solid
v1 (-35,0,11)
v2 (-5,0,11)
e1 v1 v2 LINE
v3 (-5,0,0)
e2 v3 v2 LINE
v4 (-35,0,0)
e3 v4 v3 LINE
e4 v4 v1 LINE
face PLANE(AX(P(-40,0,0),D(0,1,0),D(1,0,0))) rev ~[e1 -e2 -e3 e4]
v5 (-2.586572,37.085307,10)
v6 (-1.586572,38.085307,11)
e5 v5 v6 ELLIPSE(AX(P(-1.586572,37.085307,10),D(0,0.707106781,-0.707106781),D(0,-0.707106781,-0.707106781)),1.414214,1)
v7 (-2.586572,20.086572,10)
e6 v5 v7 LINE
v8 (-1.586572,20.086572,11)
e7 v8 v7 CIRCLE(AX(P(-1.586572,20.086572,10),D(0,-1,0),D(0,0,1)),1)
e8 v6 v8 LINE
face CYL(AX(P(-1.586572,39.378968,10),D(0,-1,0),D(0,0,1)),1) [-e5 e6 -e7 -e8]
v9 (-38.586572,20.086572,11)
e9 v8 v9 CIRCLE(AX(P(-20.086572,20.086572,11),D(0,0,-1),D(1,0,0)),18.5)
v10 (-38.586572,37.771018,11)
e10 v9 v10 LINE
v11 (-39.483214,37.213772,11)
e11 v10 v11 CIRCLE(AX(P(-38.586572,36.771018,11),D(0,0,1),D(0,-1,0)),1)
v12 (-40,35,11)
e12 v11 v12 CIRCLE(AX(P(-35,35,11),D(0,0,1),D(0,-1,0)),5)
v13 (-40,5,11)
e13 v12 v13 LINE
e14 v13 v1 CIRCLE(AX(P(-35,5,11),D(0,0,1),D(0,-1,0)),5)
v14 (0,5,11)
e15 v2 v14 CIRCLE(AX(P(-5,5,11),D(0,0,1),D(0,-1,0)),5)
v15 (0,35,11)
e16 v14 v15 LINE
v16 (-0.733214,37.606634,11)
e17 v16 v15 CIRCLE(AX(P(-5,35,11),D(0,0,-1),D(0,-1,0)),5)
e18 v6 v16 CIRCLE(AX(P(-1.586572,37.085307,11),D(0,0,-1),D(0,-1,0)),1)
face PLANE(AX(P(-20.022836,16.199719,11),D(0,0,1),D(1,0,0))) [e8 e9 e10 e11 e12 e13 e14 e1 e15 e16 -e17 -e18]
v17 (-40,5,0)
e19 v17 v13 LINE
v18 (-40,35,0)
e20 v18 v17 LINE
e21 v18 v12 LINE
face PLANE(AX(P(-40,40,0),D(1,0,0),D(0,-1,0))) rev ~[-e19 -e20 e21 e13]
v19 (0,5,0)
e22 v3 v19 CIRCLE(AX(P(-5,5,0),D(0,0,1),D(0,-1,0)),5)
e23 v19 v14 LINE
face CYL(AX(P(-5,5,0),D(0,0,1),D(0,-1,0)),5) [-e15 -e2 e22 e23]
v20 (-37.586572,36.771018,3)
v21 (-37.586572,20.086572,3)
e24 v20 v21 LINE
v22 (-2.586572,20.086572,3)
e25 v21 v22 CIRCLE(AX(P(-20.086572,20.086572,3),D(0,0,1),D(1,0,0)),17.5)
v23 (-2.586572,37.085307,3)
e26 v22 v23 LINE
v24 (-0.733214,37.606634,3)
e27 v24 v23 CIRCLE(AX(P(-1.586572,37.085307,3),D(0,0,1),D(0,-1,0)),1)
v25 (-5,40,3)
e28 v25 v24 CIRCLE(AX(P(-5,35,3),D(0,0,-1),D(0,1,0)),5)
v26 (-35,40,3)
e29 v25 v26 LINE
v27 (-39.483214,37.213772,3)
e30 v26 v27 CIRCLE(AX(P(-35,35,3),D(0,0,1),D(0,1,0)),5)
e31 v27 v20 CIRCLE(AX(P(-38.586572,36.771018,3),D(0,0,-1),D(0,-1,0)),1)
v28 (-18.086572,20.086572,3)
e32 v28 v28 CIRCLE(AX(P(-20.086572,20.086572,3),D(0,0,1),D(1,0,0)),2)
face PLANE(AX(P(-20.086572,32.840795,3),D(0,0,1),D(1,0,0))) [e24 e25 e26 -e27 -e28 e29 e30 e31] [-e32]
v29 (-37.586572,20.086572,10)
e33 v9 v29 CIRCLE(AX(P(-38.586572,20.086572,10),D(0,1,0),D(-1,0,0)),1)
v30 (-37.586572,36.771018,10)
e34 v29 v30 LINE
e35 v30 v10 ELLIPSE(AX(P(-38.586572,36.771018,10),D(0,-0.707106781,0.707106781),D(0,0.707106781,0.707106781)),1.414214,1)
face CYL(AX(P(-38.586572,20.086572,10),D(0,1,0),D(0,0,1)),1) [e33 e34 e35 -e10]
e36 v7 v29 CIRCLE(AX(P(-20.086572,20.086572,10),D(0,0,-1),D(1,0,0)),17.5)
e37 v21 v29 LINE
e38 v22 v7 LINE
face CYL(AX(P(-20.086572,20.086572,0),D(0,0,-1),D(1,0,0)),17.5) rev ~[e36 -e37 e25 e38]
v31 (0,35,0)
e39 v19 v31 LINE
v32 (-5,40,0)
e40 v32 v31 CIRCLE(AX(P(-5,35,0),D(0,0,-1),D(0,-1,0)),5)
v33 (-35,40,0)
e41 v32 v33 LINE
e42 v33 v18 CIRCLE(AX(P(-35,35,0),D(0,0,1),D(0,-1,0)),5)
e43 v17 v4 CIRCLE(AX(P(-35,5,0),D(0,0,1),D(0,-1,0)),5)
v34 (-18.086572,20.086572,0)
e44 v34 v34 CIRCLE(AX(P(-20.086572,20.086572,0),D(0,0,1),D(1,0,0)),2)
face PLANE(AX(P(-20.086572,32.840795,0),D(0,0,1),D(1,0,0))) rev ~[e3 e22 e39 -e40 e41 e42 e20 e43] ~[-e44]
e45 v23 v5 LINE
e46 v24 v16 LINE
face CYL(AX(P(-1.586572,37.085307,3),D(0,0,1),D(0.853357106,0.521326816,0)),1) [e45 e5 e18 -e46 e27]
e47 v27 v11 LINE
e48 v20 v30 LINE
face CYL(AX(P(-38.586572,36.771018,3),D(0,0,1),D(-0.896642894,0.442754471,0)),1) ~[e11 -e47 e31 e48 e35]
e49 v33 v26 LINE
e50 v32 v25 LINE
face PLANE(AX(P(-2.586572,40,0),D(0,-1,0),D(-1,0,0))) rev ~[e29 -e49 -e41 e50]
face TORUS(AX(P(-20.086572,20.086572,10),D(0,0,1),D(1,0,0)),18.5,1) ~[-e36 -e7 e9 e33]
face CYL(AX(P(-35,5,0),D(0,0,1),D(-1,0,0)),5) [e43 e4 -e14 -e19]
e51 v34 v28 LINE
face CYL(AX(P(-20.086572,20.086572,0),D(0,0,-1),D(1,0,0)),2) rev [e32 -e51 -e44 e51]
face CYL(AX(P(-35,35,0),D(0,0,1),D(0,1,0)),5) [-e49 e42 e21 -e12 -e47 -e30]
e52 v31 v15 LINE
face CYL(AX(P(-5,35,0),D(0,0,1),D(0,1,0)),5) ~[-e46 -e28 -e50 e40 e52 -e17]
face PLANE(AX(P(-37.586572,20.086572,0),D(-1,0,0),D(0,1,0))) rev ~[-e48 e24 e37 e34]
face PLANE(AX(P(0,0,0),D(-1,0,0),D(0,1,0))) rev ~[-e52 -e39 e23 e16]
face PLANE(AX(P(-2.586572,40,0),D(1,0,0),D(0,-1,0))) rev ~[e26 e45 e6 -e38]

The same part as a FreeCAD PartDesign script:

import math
import FreeCAD as App
import Part
import Sketcher
Q = App.Units.Quantity


def edges_at(feature, points):
    """Names of the edges that pass closest to the given points."""
    edges = feature.Shape.Edges
    near = lambda p: min(range(len(edges)), key=lambda i: edges[i].distToShape(Part.Vertex(*p))[0])
    return sorted({f"Edge{near(p) + 1}" for p in points})

doc = App.newDocument("Part")
body = doc.addObject("PartDesign::Body", "Body")

# Sketch on XY plane
sketch1 = doc.addObject("Sketcher::SketchObject", "Sketch")
body.addObject(sketch1)
sketch1.AttachmentSupport = (doc.XY_Plane, [""])
sketch1.MapMode = "FlatFace"
sketch1.addGeometry(Part.LineSegment(App.Vector(-40, 0, 0), App.Vector(0, 0, 0)), False)
sketch1.addGeometry(Part.LineSegment(App.Vector(0, 0, 0), App.Vector(0, 40, 0)), False)
sketch1.addGeometry(Part.LineSegment(App.Vector(0, 40, 0), App.Vector(-2.6, 40, 0)), False)
sketch1.addGeometry(Part.LineSegment(App.Vector(-2.6, 40, 0), App.Vector(-2.6, 20.1, 0)), False)
sketch1.addGeometry(Part.ArcOfCircle(Part.Circle(App.Vector(-20.1, 20.1, 0), App.Vector(0, 0, 1), 17.5), math.radians(180), math.radians(360)), False)
sketch1.addGeometry(Part.LineSegment(App.Vector(-37.6, 20.1, 0), App.Vector(-37.6, 40, 0)), False)
sketch1.addGeometry(Part.LineSegment(App.Vector(-37.6, 40, 0), App.Vector(-40, 40, 0)), False)
sketch1.addGeometry(Part.LineSegment(App.Vector(-40, 40, 0), App.Vector(-40, 0, 0)), False)
sketch1.addConstraint(Sketcher.Constraint("Coincident", 0, 2, 1, 1))
sketch1.addConstraint(Sketcher.Constraint("Coincident", 1, 2, 2, 1))
sketch1.addConstraint(Sketcher.Constraint("Coincident", 2, 2, 3, 1))
sketch1.addConstraint(Sketcher.Constraint("Tangent", 3, 2, 4, 2))
sketch1.addConstraint(Sketcher.Constraint("Tangent", 4, 1, 5, 1))
sketch1.addConstraint(Sketcher.Constraint("Coincident", 5, 2, 6, 1))
sketch1.addConstraint(Sketcher.Constraint("Coincident", 6, 2, 7, 1))
sketch1.addConstraint(Sketcher.Constraint("Coincident", 7, 2, 0, 1))
sketch1.addConstraint(Sketcher.Constraint("Horizontal", 0))
sketch1.addConstraint(Sketcher.Constraint("Vertical", 1))
sketch1.addConstraint(Sketcher.Constraint("Horizontal", 2))
sketch1.addConstraint(Sketcher.Constraint("Vertical", 3))
sketch1.addConstraint(Sketcher.Constraint("Vertical", 5))
sketch1.addConstraint(Sketcher.Constraint("Horizontal", 6))
sketch1.addConstraint(Sketcher.Constraint("Vertical", 7))
sketch1.addConstraint(Sketcher.Constraint("Coincident", 0, 2, -1, 1))
sketch1.addConstraint(Sketcher.Constraint("Horizontal", 2, 2, 5, 2))
sketch1.addConstraint(Sketcher.Constraint("Equal", 0, 1))
sketch1.addConstraint(Sketcher.Constraint("Radius", 4, Q("17.5 mm")))
sketch1.addConstraint(Sketcher.Constraint("DistanceX", 0, 1, 0, 2, Q("40 mm")))
sketch1.addConstraint(Sketcher.Constraint("DistanceX", 2, 2, 2, 1, Q("2.586572 mm")))
sketch1.addConstraint(Sketcher.Constraint("DistanceY", 3, 2, 3, 1, Q("19.913428 mm")))
pad1 = doc.addObject("PartDesign::Pad", "Pad")
body.addObject(pad1)
pad1.Profile = sketch1
pad1.Length = 11

# Sketch on XY plane
sketch2 = doc.addObject("Sketcher::SketchObject", "Sketch001")
body.addObject(sketch2)
sketch2.AttachmentSupport = (doc.XY_Plane, [""])
sketch2.MapMode = "FlatFace"
sketch2.addGeometry(Part.LineSegment(App.Vector(-2.6, 20.1, 0), App.Vector(-2.6, 40, 0)), False)
sketch2.addGeometry(Part.LineSegment(App.Vector(-2.6, 40, 0), App.Vector(-37.6, 40, 0)), False)
sketch2.addGeometry(Part.LineSegment(App.Vector(-37.6, 40, 0), App.Vector(-37.6, 20.1, 0)), False)
sketch2.addGeometry(Part.ArcOfCircle(Part.Circle(App.Vector(-20.1, 20.1, 0), App.Vector(0, 0, 1), 17.5), math.radians(180), math.radians(360)), False)
sketch2.addGeometry(Part.Circle(App.Vector(-20.1, 20.1, 0), App.Vector(0, 0, 1), 2), False)
sketch2.addConstraint(Sketcher.Constraint("Coincident", 0, 2, 1, 1))
sketch2.addConstraint(Sketcher.Constraint("Coincident", 1, 2, 2, 1))
sketch2.addConstraint(Sketcher.Constraint("Tangent", 2, 2, 3, 1))
sketch2.addConstraint(Sketcher.Constraint("Tangent", 3, 2, 0, 1))
sketch2.addConstraint(Sketcher.Constraint("Vertical", 0))
sketch2.addConstraint(Sketcher.Constraint("Horizontal", 1))
sketch2.addConstraint(Sketcher.Constraint("Vertical", 2))
sketch2.addConstraint(Sketcher.Constraint("Coincident", 4, 3, 3, 3))
sketch2.addConstraint(Sketcher.Constraint("Diameter", 4, Q("4 mm")))
sketch2.addConstraint(Sketcher.Constraint("Radius", 3, Q("17.5 mm")))
sketch2.addConstraint(Sketcher.Constraint("DistanceY", -1, 1, 0, 2, Q("40 mm")))
sketch2.addConstraint(Sketcher.Constraint("DistanceY", 0, 1, 0, 2, Q("19.913428 mm")))
sketch2.addConstraint(Sketcher.Constraint("DistanceX", 3, 3, -1, 1, Q("20.086572 mm")))
pad2 = doc.addObject("PartDesign::Pad", "Pad001")
body.addObject(pad2)
pad2.Profile = sketch2
pad2.Length = 3
doc.recompute()

fillet = doc.addObject("PartDesign::Fillet", "Fillet")
body.addObject(fillet)
fillet.Base = (pad2, edges_at(pad2, [
    (-40, 0, 5.5),
    (0, 0, 5.5),
    (0, 40, 5.5),
    (-40, 40, 5.5),
]))
fillet.Radius = 5
doc.recompute()

fillet2 = doc.addObject("PartDesign::Fillet", "Fillet001")
body.addObject(fillet2)
fillet2.Base = (fillet, edges_at(fillet, [
    (-20.087, 2.587, 11),
    (-37.587, 29.683, 11),
    (-2.587, 39.379, 7),
    (-37.587, 39.279, 7),
]))
fillet2.Radius = 1

doc.recompute()
